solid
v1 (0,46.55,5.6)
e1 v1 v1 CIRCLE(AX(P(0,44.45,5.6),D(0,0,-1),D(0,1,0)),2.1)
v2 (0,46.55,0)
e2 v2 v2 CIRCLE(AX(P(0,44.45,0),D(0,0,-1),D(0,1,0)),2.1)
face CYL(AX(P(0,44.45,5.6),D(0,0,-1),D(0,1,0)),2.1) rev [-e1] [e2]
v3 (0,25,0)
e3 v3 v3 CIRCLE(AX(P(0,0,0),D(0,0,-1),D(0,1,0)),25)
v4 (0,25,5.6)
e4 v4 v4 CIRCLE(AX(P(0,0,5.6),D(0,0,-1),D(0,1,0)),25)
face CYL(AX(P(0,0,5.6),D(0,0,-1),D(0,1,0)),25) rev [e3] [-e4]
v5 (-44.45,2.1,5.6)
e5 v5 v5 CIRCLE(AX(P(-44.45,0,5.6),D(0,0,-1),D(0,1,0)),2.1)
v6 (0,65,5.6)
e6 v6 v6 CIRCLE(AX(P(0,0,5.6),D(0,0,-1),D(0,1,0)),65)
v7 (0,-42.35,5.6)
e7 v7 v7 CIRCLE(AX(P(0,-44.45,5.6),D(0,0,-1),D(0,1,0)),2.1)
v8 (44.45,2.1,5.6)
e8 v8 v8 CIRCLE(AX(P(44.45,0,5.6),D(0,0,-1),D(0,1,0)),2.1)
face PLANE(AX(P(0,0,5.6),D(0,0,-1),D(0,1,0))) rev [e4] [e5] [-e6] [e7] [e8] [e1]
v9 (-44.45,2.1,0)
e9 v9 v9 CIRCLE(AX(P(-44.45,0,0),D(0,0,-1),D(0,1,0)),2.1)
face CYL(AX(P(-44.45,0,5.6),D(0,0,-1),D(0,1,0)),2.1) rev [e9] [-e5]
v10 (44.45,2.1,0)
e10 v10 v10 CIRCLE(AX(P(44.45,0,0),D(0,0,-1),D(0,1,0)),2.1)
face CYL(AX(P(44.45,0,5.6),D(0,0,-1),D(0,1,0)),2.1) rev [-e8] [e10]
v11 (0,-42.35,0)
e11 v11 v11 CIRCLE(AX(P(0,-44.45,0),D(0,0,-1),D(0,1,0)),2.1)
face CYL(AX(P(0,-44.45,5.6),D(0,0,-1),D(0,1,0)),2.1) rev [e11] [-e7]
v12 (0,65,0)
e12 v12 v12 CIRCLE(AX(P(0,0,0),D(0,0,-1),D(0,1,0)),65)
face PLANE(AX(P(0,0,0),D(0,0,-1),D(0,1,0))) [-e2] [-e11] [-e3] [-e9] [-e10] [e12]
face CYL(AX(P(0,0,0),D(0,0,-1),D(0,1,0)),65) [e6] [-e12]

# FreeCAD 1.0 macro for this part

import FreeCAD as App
import Part
import Sketcher
from FreeCAD import Vector

doc = App.newDocument("Part")
body = doc.addObject("PartDesign::Body", "Body")

# Sketch on YZ plane
sketch1 = body.newObject("Sketcher::SketchObject", "Sketch")
sketch1.AttachmentSupport = (doc.getObject("YZ_Plane"), [""])
sketch1.MapMode = "FlatFace"
sketch1.addGeometry(Part.LineSegment(Vector(65, 6, 0), Vector(0, 6, 0)), False)
sketch1.addGeometry(Part.LineSegment(Vector(0, 6, 0), Vector(0, 0, 0)), False)
sketch1.addGeometry(Part.LineSegment(Vector(0, 0, 0), Vector(65, 0, 0)), False)
sketch1.addGeometry(Part.LineSegment(Vector(65, 0, 0), Vector(65, 6, 0)), False)
sketch1.addConstraint(Sketcher.Constraint("Coincident", 0, 2, 1, 1))
sketch1.addConstraint(Sketcher.Constraint("Coincident", 1, 2, 2, 1))
sketch1.addConstraint(Sketcher.Constraint("Coincident", 2, 2, 3, 1))
sketch1.addConstraint(Sketcher.Constraint("Coincident", 3, 2, 0, 1))
sketch1.addConstraint(Sketcher.Constraint("Horizontal", 0))
sketch1.addConstraint(Sketcher.Constraint("Vertical", 1))
sketch1.addConstraint(Sketcher.Constraint("Horizontal", 2))
sketch1.addConstraint(Sketcher.Constraint("Vertical", 3))
sketch1.addConstraint(Sketcher.Constraint("Coincident", 1, 2, -1, 1))
sketch1.addConstraint(Sketcher.Constraint("DistanceX", 0, 2, 0, 1, 65.0))
sketch1.addConstraint(Sketcher.Constraint("DistanceY", 1, 2, 1, 1, 5.6))
revolution = body.newObject("PartDesign::Revolution", "Revolution")
revolution.Profile = sketch1
revolution.ReferenceAxis = (sketch1, ["V_Axis"])
revolution.Angle = 360

# Sketch on XY plane
sketch2 = body.newObject("Sketcher::SketchObject", "Sketch001")
sketch2.AttachmentSupport = (doc.getObject("XY_Plane"), [""])
sketch2.MapMode = "FlatFace"
sketch2.addGeometry(Part.Circle(Vector(0, 0, 0), Vector(0, 0, 1), 25), False)
sketch2.addConstraint(Sketcher.Constraint("Coincident", 0, 3, -1, 1))
sketch2.addConstraint(Sketcher.Constraint("Diameter", 0, 50.0))
pocket1 = body.newObject("PartDesign::Pocket", "Pocket")
pocket1.Profile = sketch2
pocket1.Type = "ThroughAll"
pocket1.Reversed = True

# Sketch on XY plane
sketch3 = body.newObject("Sketcher::SketchObject", "Sketch002")
sketch3.AttachmentSupport = (doc.getObject("XY_Plane"), [""])
sketch3.MapMode = "FlatFace"
sketch3.addGeometry(Part.Circle(Vector(0, 44.5, 0), Vector(0, 0, 1), 2.1), False)
sketch3.addGeometry(Part.Circle(Vector(-44.5, 0, 0), Vector(0, 0, 1), 2.1), False)
sketch3.addGeometry(Part.Circle(Vector(0, -44.5, 0), Vector(0, 0, 1), 2.1), False)
sketch3.addGeometry(Part.Circle(Vector(44.5, 0, 0), Vector(0, 0, 1), 2.1), False)
sketch3.addConstraint(Sketcher.Constraint("Equal", 0, 1))
sketch3.addConstraint(Sketcher.Constraint("Equal", 1, 2))
sketch3.addConstraint(Sketcher.Constraint("Equal", 2, 3))
sketch3.addConstraint(Sketcher.Constraint("Symmetric", 0, 3, 2, 3, -1, 1))
sketch3.addConstraint(Sketcher.Constraint("Symmetric", 1, 3, 3, 3, -1, 1))
sketch3.addConstraint(Sketcher.Constraint("PointOnObject", 0, 3, -2))
sketch3.addConstraint(Sketcher.Constraint("PointOnObject", 1, 3, -1))
sketch3.addConstraint(Sketcher.Constraint("Diameter", 0, 4.2))
sketch3.addConstraint(Sketcher.Constraint("DistanceY", 2, 3, 0, 3, 88.9))
sketch3.addConstraint(Sketcher.Constraint("DistanceX", 1, 3, 3, 3, 88.9))
pocket2 = body.newObject("PartDesign::Pocket", "Pocket001")
pocket2.Profile = sketch3
pocket2.Type = "ThroughAll"
pocket2.Reversed = True

doc.recompute()
